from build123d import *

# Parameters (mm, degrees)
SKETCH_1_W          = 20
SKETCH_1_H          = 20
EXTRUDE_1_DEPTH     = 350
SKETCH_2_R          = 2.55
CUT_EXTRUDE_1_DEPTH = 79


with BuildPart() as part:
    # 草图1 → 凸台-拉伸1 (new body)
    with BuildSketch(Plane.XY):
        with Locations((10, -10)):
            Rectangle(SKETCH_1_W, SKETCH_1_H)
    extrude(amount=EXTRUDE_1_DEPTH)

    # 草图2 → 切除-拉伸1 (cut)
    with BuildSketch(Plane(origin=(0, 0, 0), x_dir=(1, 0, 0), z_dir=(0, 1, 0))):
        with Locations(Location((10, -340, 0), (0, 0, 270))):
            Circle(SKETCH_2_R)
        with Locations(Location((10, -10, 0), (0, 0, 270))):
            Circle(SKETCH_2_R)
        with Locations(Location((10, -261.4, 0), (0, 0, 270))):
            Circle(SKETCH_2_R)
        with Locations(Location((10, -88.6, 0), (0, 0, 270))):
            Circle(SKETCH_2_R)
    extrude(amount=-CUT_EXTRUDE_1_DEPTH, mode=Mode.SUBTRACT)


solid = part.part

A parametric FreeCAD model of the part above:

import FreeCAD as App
import Part
import Sketcher
from FreeCAD import Vector
Q = App.Units.Quantity

doc = App.newDocument("Part")
body = doc.addObject("PartDesign::Body", "Body")

# Sketch on XY plane
sketch1 = body.newObject("Sketcher::SketchObject", "Sketch")
sketch1.AttachmentSupport = (doc.getObject("XY_Plane"), [""])
sketch1.MapMode = "FlatFace"
sketch1.addGeometry(Part.LineSegment(Vector(0, 0, 0), Vector(0, -20, 0)), False)
sketch1.addGeometry(Part.LineSegment(Vector(0, -20, 0), Vector(20, -20, 0)), False)
sketch1.addGeometry(Part.LineSegment(Vector(20, -20, 0), Vector(20, 0, 0)), False)
sketch1.addGeometry(Part.LineSegment(Vector(20, 0, 0), Vector(0, 0, 0)), False)
sketch1.addConstraint(Sketcher.Constraint("Coincident", 0, 2, 1, 1))
sketch1.addConstraint(Sketcher.Constraint("Coincident", 1, 2, 2, 1))
sketch1.addConstraint(Sketcher.Constraint("Coincident", 2, 2, 3, 1))
sketch1.addConstraint(Sketcher.Constraint("Coincident", 3, 2, 0, 1))
sketch1.addConstraint(Sketcher.Constraint("Vertical", 0))
sketch1.addConstraint(Sketcher.Constraint("Horizontal", 1))
sketch1.addConstraint(Sketcher.Constraint("Vertical", 2))
sketch1.addConstraint(Sketcher.Constraint("Horizontal", 3))
sketch1.addConstraint(Sketcher.Constraint("Coincident", 3, 2, -1, 1))
sketch1.addConstraint(Sketcher.Constraint("Equal", 3, 0))
sketch1.addConstraint(Sketcher.Constraint("DistanceX", 1, 1, 1, 2, Q("20 mm")))
pad1 = body.newObject("PartDesign::Pad", "Pad")
pad1.Profile = sketch1
pad1.Length = 350

# Sketch on XZ plane
sketch2 = body.newObject("Sketcher::SketchObject", "Sketch001")
sketch2.AttachmentSupport = (doc.getObject("XZ_Plane"), [""])
sketch2.MapMode = "FlatFace"
sketch2.addGeometry(Part.Circle(Vector(10, 340, 0), Vector(0, 0, 1), 2.55), False)
sketch2.addGeometry(Part.Circle(Vector(10, 10, 0), Vector(0, 0, 1), 2.55), False)
sketch2.addGeometry(Part.Circle(Vector(10, 261.4, 0), Vector(0, 0, 1), 2.55), False)
sketch2.addGeometry(Part.Circle(Vector(10, 88.6, 0), Vector(0, 0, 1), 2.55), False)
sketch2.addConstraint(Sketcher.Constraint("Equal", 0, 1))
sketch2.addConstraint(Sketcher.Constraint("Equal", 1, 2))
sketch2.addConstraint(Sketcher.Constraint("Equal", 2, 3))
sketch2.addConstraint(Sketcher.Constraint("Vertical", 0, 3, 1, 3))
sketch2.addConstraint(Sketcher.Constraint("Vertical", 1, 3, 2, 3))
sketch2.addConstraint(Sketcher.Constraint("Vertical", 2, 3, 3, 3))
sketch2.addConstraint(Sketcher.Constraint("Diameter", 0, Q("5.1 mm")))
sketch2.addConstraint(Sketcher.Constraint("DistanceX", -1, 1, 0, 3, Q("10 mm")))
sketch2.addConstraint(Sketcher.Constraint("DistanceY", -1, 1, 0, 3, Q("340 mm")))
sketch2.addConstraint(Sketcher.Constraint("DistanceY", -1, 1, 1, 3, Q("10 mm")))
sketch2.addConstraint(Sketcher.Constraint("DistanceY", -1, 1, 2, 3, Q("261.4 mm")))
sketch2.addConstraint(Sketcher.Constraint("DistanceY", -1, 1, 3, 3, Q("88.6 mm")))
pocket1 = body.newObject("PartDesign::Pocket", "Pocket")
pocket1.Profile = sketch2
pocket1.Length = 79
pocket1.Reversed = True

doc.recompute()
